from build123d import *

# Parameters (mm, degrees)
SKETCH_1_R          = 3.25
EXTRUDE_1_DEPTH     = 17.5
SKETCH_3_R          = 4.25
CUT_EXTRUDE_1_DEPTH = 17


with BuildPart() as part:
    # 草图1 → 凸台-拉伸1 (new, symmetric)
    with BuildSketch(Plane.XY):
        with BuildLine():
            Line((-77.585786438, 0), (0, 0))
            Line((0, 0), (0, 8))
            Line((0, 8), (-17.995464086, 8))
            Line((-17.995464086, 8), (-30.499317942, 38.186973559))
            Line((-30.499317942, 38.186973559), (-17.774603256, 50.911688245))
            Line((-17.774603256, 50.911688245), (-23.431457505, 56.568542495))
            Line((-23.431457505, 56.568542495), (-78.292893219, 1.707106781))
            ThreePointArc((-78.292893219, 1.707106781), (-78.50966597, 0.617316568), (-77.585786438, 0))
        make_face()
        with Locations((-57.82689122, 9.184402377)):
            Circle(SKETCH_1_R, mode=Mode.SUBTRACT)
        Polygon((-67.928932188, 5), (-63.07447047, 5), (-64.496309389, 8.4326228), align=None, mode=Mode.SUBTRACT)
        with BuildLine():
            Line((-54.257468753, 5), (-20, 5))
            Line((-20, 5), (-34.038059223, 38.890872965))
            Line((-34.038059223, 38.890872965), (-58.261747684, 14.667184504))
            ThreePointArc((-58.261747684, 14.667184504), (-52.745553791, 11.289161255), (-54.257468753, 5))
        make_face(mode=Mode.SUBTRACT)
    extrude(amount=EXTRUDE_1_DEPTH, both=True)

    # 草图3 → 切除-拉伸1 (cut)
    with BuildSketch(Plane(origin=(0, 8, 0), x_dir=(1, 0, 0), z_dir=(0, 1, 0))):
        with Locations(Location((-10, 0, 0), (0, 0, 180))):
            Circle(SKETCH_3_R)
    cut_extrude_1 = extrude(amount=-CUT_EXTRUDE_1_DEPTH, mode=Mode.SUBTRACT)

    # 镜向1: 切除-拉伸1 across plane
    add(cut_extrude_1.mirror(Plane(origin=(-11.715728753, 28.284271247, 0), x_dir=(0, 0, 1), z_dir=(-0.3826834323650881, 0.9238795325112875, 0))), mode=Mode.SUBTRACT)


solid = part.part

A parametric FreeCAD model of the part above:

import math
import FreeCAD as App
import Part
import Sketcher

V = App.Vector
Q = App.Units.Quantity

doc = App.newDocument("Part")
body = doc.addObject("PartDesign::Body", "Body")

sketch1 = body.newObject("Sketcher::SketchObject", "Sketch")
sketch1.AttachmentSupport = (doc.getObject("XY_Plane"), [""])
sketch1.MapMode = "FlatFace"
sketch1.addGeometry(Part.LineSegment(V(-77.6, 0, 0), V(0, 0, 0)), False)
sketch1.addGeometry(Part.LineSegment(V(0, 0, 0), V(0, 8, 0)), False)
sketch1.addGeometry(Part.LineSegment(V(0, 8, 0), V(-18, 8, 0)), False)
sketch1.addGeometry(Part.LineSegment(V(-18, 8, 0), V(-30.5, 38.2, 0)), False)
sketch1.addGeometry(Part.LineSegment(V(-30.5, 38.2, 0), V(-17.8, 50.9, 0)), False)
sketch1.addGeometry(Part.LineSegment(V(-17.8, 50.9, 0), V(-23.4, 56.6, 0)), False)
sketch1.addGeometry(Part.LineSegment(V(-23.4, 56.6, 0), V(-78.3, 1.7, 0)), False)
sketch1.addGeometry(Part.ArcOfCircle(Part.Circle(V(-77.6, 1, 0), V(0, 0, 1), 1), math.radians(135), math.radians(270)), False)
sketch1.addGeometry(Part.LineSegment(V(-63.1, 5, 0), V(-67.9, 5, 0)), False)
sketch1.addGeometry(Part.LineSegment(V(-67.9, 5, 0), V(-64.5, 8.4, 0)), False)
sketch1.addGeometry(Part.LineSegment(V(-64.5, 8.4, 0), V(-63.1, 5, 0)), False)
sketch1.addGeometry(Part.Circle(V(-57.8, 9.2, 0), V(0, 0, 1), 3.2), False)
sketch1.addGeometry(Part.LineSegment(V(-20, 5, 0), V(-54.3, 5, 0)), False)
sketch1.addGeometry(Part.ArcOfCircle(Part.Circle(V(-57.8, 9.2, 0), V(0, 0, 1), 5.5), math.radians(-50), math.radians(95)), False)
sketch1.addGeometry(Part.LineSegment(V(-58.3, 14.7, 0), V(-34, 38.9, 0)), False)
sketch1.addGeometry(Part.LineSegment(V(-34, 38.9, 0), V(-20, 5, 0)), False)
sketch1.addConstraint(Sketcher.Constraint("Coincident", 0, 2, 1, 1))
sketch1.addConstraint(Sketcher.Constraint("Coincident", 1, 2, 2, 1))
sketch1.addConstraint(Sketcher.Constraint("Coincident", 2, 2, 3, 1))
sketch1.addConstraint(Sketcher.Constraint("Coincident", 3, 2, 4, 1))
sketch1.addConstraint(Sketcher.Constraint("Coincident", 4, 2, 5, 1))
sketch1.addConstraint(Sketcher.Constraint("Coincident", 5, 2, 6, 1))
sketch1.addConstraint(Sketcher.Constraint("Tangent", 6, 2, 7, 1))
sketch1.addConstraint(Sketcher.Constraint("Tangent", 7, 2, 0, 1))
sketch1.addConstraint(Sketcher.Constraint("Coincident", 8, 2, 9, 1))
sketch1.addConstraint(Sketcher.Constraint("Coincident", 9, 2, 10, 1))
sketch1.addConstraint(Sketcher.Constraint("Coincident", 10, 2, 8, 1))
sketch1.addConstraint(Sketcher.Constraint("Coincident", 12, 2, 13, 1))
sketch1.addConstraint(Sketcher.Constraint("Coincident", 13, 2, 14, 1))
sketch1.addConstraint(Sketcher.Constraint("Coincident", 14, 2, 15, 1))
sketch1.addConstraint(Sketcher.Constraint("Coincident", 15, 2, 12, 1))
sketch1.addConstraint(Sketcher.Constraint("Horizontal", 0))
sketch1.addConstraint(Sketcher.Constraint("Vertical", 1))
sketch1.addConstraint(Sketcher.Constraint("Horizontal", 2))
sketch1.addConstraint(Sketcher.Constraint("Horizontal", 8))
sketch1.addConstraint(Sketcher.Constraint("Horizontal", 12))
sketch1.addConstraint(Sketcher.Constraint("Coincident", 0, 2, -1, 1))
sketch1.addConstraint(Sketcher.Constraint("Coincident", 13, 3, 11, 3))
sketch1.addConstraint(Sketcher.Constraint("Perpendicular", 4, 5))
sketch1.addConstraint(Sketcher.Constraint("Perpendicular", 5, 6))
sketch1.addConstraint(Sketcher.Constraint("Parallel", 6, 9))
sketch1.addConstraint(Sketcher.Constraint("Parallel", 3, 10))
sketch1.addConstraint(Sketcher.Constraint("Parallel", 9, 14))
sketch1.addConstraint(Sketcher.Constraint("Parallel", 10, 15))
sketch1.addConstraint(Sketcher.Constraint("Horizontal", 10, 2, 12, 2))
sketch1.addConstraint(Sketcher.Constraint("Radius", 7, Q("1 mm")))
sketch1.addConstraint(Sketcher.Constraint("Diameter", 11, Q("6.5 mm")))
sketch1.addConstraint(Sketcher.Constraint("Radius", 13, Q("5.5 mm")))
sketch1.addConstraint(Sketcher.Constraint("DistanceY", 1, 1, 1, 2, Q("8 mm")))
sketch1.addConstraint(Sketcher.Constraint("Angle", 4, Q("45 deg")))
sketch1.addConstraint(Sketcher.Constraint("Distance", 5, Q("8 mm")))
sketch1.addConstraint(Sketcher.Constraint("DistanceY", -1, 1, 8, 2, Q("5 mm")))
sketch1.addConstraint(Sketcher.Constraint("DistanceX", 15, 2, -1, 1, Q("20 mm")))
sketch1.addConstraint(Sketcher.Constraint("Angle", 3, Q("112.5 deg")))
sketch1.addConstraint(Sketcher.Constraint("DistanceX", 6, 2, 11, 3, Q("20.466002 mm")))
sketch1.addConstraint(Sketcher.Constraint("DistanceX", 10, 2, 12, 2, Q("8.817002 mm")))
sketch1.addConstraint(Sketcher.Constraint("DistanceX", 8, 2, 8, 1, Q("4.854462 mm")))
sketch1.addConstraint(Sketcher.Constraint("DistanceX", 12, 2, 12, 1, Q("34.257469 mm")))
sketch1.addConstraint(Sketcher.Constraint("DistanceY", 3, 2, 14, 2, Q("0.703899 mm")))
sketch1.addConstraint(Sketcher.Constraint("DistanceX", 14, 2, 5, 2, Q("10.606602 mm")))
sketch1.addConstraint(Sketcher.Constraint("Distance", 14, Q("34.257469 mm")))
sketch1.addConstraint(Sketcher.Constraint("DistanceX", 0, 1, 0, 2, Q("77.585786 mm")))
pad1 = body.newObject("PartDesign::Pad", "Pad")
pad1.Profile = sketch1
pad1.Length = 35
pad1.Midplane = True

sketch2 = body.newObject("Sketcher::SketchObject", "Sketch001")
sketch2.AttachmentSupport = (doc.getObject("XZ_Plane"), [""])
sketch2.MapMode = "FlatFace"
sketch2.AttachmentOffset = App.Placement(V(0, 0, -8), App.Rotation())
sketch2.addGeometry(Part.Circle(V(-10, 0, 0), V(0, 0, 1), 4.2), False)
sketch2.addConstraint(Sketcher.Constraint("PointOnObject", 0, 3, -1))
sketch2.addConstraint(Sketcher.Constraint("Diameter", 0, Q("8.5 mm")))
sketch2.addConstraint(Sketcher.Constraint("DistanceX", 0, 3, -1, 1, Q("10 mm")))
pocket1 = body.newObject("PartDesign::Pocket", "Pocket")
pocket1.Profile = sketch2
pocket1.Length = 17
pocket1.Reversed = True
doc.recompute()

datumplane = body.newObject("PartDesign::Plane", "DatumPlane")
datumplane.Placement = App.Placement(V(-11.715729, 28.284271, 0), App.Rotation(V(0.923879533, 0.382683432, 0), V(0, 0, -1), V(-0.382683432, 0.923879533, 0), "ZXY"))
mirrored = body.newObject("PartDesign::Mirrored", "Mirrored")
mirrored.Originals = [pocket1]
mirrored.MirrorPlane = (datumplane, [""])
body.Tip = mirrored

doc.recompute()
